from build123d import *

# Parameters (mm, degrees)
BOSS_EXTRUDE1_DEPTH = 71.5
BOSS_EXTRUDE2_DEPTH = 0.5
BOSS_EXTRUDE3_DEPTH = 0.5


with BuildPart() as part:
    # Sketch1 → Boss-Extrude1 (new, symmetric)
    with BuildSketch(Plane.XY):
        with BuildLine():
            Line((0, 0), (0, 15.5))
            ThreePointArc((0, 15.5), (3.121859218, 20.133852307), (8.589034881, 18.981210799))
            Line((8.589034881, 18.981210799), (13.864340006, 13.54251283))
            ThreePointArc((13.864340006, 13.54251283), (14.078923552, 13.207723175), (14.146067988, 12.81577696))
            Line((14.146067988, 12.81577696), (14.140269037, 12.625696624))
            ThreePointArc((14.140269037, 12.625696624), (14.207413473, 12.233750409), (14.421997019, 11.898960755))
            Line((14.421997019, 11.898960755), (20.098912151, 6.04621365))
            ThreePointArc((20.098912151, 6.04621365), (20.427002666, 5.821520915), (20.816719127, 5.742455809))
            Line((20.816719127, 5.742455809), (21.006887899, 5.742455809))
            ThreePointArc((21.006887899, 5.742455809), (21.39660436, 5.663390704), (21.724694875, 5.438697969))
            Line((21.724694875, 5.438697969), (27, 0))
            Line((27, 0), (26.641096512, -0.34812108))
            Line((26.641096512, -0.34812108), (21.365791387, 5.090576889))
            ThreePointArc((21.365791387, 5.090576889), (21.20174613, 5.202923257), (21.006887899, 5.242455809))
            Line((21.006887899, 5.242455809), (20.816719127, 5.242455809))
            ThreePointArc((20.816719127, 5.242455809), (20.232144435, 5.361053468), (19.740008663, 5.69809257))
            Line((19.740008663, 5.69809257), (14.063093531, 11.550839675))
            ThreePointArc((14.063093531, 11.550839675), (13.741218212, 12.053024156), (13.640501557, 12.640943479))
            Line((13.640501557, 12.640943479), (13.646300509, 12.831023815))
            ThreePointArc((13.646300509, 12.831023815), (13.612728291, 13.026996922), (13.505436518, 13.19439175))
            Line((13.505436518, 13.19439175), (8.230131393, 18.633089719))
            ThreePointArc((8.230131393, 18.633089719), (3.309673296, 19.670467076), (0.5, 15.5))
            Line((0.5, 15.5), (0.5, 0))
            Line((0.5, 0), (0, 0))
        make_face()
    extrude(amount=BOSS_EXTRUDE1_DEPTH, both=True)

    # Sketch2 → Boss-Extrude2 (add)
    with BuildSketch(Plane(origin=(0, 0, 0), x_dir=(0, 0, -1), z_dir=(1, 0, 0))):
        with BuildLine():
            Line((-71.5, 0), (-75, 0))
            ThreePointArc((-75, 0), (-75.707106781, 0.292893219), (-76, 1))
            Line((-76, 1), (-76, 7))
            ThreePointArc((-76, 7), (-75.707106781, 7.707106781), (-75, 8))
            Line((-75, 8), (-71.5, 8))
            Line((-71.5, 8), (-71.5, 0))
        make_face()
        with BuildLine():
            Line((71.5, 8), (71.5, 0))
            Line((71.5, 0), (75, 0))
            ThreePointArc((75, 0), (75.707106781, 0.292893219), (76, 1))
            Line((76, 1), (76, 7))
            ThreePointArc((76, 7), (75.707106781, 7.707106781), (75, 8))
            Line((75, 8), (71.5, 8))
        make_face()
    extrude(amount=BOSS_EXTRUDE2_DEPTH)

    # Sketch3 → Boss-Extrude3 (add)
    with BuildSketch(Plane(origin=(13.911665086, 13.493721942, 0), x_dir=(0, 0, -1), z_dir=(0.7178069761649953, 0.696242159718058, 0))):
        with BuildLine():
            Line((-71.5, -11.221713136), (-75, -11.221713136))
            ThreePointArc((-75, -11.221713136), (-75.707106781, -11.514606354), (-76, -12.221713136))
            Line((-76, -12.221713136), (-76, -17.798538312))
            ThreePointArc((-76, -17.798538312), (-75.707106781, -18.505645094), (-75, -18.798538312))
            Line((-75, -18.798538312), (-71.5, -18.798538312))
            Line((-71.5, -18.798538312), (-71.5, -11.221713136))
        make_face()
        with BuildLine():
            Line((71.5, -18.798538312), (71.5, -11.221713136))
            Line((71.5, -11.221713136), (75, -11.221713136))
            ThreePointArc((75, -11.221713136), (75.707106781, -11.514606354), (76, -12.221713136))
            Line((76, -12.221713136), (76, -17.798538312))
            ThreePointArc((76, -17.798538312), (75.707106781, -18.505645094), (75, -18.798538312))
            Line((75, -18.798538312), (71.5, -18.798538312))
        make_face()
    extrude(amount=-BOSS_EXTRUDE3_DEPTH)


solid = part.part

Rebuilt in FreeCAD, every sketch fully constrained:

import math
import FreeCAD as App
import Part
import Sketcher
Q = App.Units.Quantity

doc = App.newDocument("Part")
params = doc.addObject("Spreadsheet::Sheet", "Params")
for row, (alias, value) in enumerate([
    ("sketch1_radius", "1 mm"),
    ("sketch1_radius2", "5 mm"),
    ("sketch1_radius3", "4.5 mm"),
    ("sketch1_height", "15.5 mm"),
    ("pad1_length", "143 mm"),
    ("sketch2_radius", "1 mm"),
    ("sketch2_width", "8 mm"),
    ("sketch2_height", "3.5 mm"),
    ("pad2_length", "0.5 mm"),
    ("sketch3_radius", "1 mm"),
    ("sketch3_width", "3.5 mm"),
    ("pad3_length", "0.5 mm"),
], start=1):
    params.set(f"A{row}", alias)
    params.set(f"B{row}", "=" + value)
    params.setAlias(f"B{row}", alias)

body = doc.addObject("PartDesign::Body", "Body")

sketch1 = doc.addObject("Sketcher::SketchObject", "Sketch")
body.addObject(sketch1)
sketch1.AttachmentSupport = (doc.XY_Plane, [""])
sketch1.MapMode = "FlatFace"
sketch1.addGeometry(Part.LineSegment(App.Vector(0, 15.5, 0), App.Vector(0, 0, 0)), False)
sketch1.addGeometry(Part.LineSegment(App.Vector(0, 0, 0), App.Vector(0.5, 0, 0)), False)
sketch1.addGeometry(Part.LineSegment(App.Vector(0.5, 0, 0), App.Vector(0.5, 15.5, 0)), False)
sketch1.addGeometry(Part.ArcOfCircle(Part.Circle(App.Vector(5, 15.5, 0), App.Vector(0, 0, 1), 4.5), math.radians(44), math.radians(180)), False)
sketch1.addGeometry(Part.LineSegment(App.Vector(8.23, 18.63, 0), App.Vector(13.51, 13.19, 0)), False)
sketch1.addGeometry(Part.ArcOfCircle(Part.Circle(App.Vector(13.15, 12.85, 0), App.Vector(0, 0, 1), 0.5), math.radians(-2), math.radians(44)), False)
sketch1.addGeometry(Part.LineSegment(App.Vector(13.65, 12.83, 0), App.Vector(13.64, 12.64, 0)), False)
sketch1.addGeometry(Part.ArcOfCircle(Part.Circle(App.Vector(15.14, 12.6, 0), App.Vector(0, 0, 1), 1.5), math.radians(178), math.radians(224)), False)
sketch1.addGeometry(Part.LineSegment(App.Vector(14.06, 11.55, 0), App.Vector(19.74, 5.7, 0)), False)
sketch1.addGeometry(Part.ArcOfCircle(Part.Circle(App.Vector(20.82, 6.74, 0), App.Vector(0, 0, 1), 1.5), math.radians(-136), math.radians(-90)), False)
sketch1.addGeometry(Part.LineSegment(App.Vector(20.82, 5.24, 0), App.Vector(21.01, 5.24, 0)), False)
sketch1.addGeometry(Part.ArcOfCircle(Part.Circle(App.Vector(21.01, 4.74, 0), App.Vector(0, 0, 1), 0.5), math.radians(44), math.radians(90)), False)
sketch1.addGeometry(Part.LineSegment(App.Vector(21.37, 5.09, 0), App.Vector(26.64, -0.35, 0)), False)
sketch1.addGeometry(Part.LineSegment(App.Vector(26.64, -0.35, 0), App.Vector(27, 0, 0)), False)
sketch1.addGeometry(Part.LineSegment(App.Vector(27, 0, 0), App.Vector(21.72, 5.44, 0)), False)
sketch1.addGeometry(Part.ArcOfCircle(Part.Circle(App.Vector(21.01, 4.74, 0), App.Vector(0, 0, 1), 1), math.radians(44), math.radians(90)), False)
sketch1.addGeometry(Part.LineSegment(App.Vector(21.01, 5.74, 0), App.Vector(20.82, 5.74, 0)), False)
sketch1.addGeometry(Part.ArcOfCircle(Part.Circle(App.Vector(20.82, 6.74, 0), App.Vector(0, 0, 1), 1), math.radians(-136), math.radians(-90)), False)
sketch1.addGeometry(Part.LineSegment(App.Vector(20.1, 6.05, 0), App.Vector(14.42, 11.9, 0)), False)
sketch1.addGeometry(Part.ArcOfCircle(Part.Circle(App.Vector(15.14, 12.6, 0), App.Vector(0, 0, 1), 1), math.radians(178), math.radians(224)), False)
sketch1.addGeometry(Part.LineSegment(App.Vector(14.14, 12.63, 0), App.Vector(14.15, 12.82, 0)), False)
sketch1.addGeometry(Part.ArcOfCircle(Part.Circle(App.Vector(13.15, 12.85, 0), App.Vector(0, 0, 1), 1), math.radians(-2), math.radians(44)), False)
sketch1.addGeometry(Part.LineSegment(App.Vector(13.86, 13.54, 0), App.Vector(8.59, 18.98, 0)), False)
sketch1.addGeometry(Part.ArcOfCircle(Part.Circle(App.Vector(5, 15.5, 0), App.Vector(0, 0, 1), 5), math.radians(44), math.radians(180)), False)
sketch1.addConstraint(Sketcher.Constraint("Coincident", 0, 2, 1, 1))
sketch1.addConstraint(Sketcher.Constraint("Coincident", 1, 2, 2, 1))
sketch1.addConstraint(Sketcher.Constraint("Tangent", 2, 2, 3, 2))
sketch1.addConstraint(Sketcher.Constraint("Tangent", 3, 1, 4, 1))
sketch1.addConstraint(Sketcher.Constraint("Tangent", 4, 2, 5, 2))
sketch1.addConstraint(Sketcher.Constraint("Tangent", 5, 1, 6, 1))
sketch1.addConstraint(Sketcher.Constraint("Tangent", 6, 2, 7, 1))
sketch1.addConstraint(Sketcher.Constraint("Tangent", 7, 2, 8, 1))
sketch1.addConstraint(Sketcher.Constraint("Tangent", 8, 2, 9, 1))
sketch1.addConstraint(Sketcher.Constraint("Tangent", 9, 2, 10, 1))
sketch1.addConstraint(Sketcher.Constraint("Tangent", 10, 2, 11, 2))
sketch1.addConstraint(Sketcher.Constraint("Tangent", 11, 1, 12, 1))
sketch1.addConstraint(Sketcher.Constraint("Coincident", 12, 2, 13, 1))
sketch1.addConstraint(Sketcher.Constraint("Coincident", 13, 2, 14, 1))
sketch1.addConstraint(Sketcher.Constraint("Tangent", 14, 2, 15, 1))
sketch1.addConstraint(Sketcher.Constraint("Tangent", 15, 2, 16, 1))
sketch1.addConstraint(Sketcher.Constraint("Tangent", 16, 2, 17, 2))
sketch1.addConstraint(Sketcher.Constraint("Tangent", 17, 1, 18, 1))
sketch1.addConstraint(Sketcher.Constraint("Tangent", 18, 2, 19, 2))
sketch1.addConstraint(Sketcher.Constraint("Tangent", 19, 1, 20, 1))
sketch1.addConstraint(Sketcher.Constraint("Tangent", 20, 2, 21, 1))
sketch1.addConstraint(Sketcher.Constraint("Tangent", 21, 2, 22, 1))
sketch1.addConstraint(Sketcher.Constraint("Tangent", 22, 2, 23, 1))
sketch1.addConstraint(Sketcher.Constraint("Tangent", 23, 2, 0, 1))
sketch1.addConstraint(Sketcher.Constraint("Vertical", 0))
sketch1.addConstraint(Sketcher.Constraint("Horizontal", 1))
sketch1.addConstraint(Sketcher.Constraint("Vertical", 2))
sketch1.addConstraint(Sketcher.Constraint("Horizontal", 10))
sketch1.addConstraint(Sketcher.Constraint("Horizontal", 16))
sketch1.addConstraint(Sketcher.Constraint("Coincident", 0, 2, -1, 1))
sketch1.addConstraint(Sketcher.Constraint("Coincident", 15, 3, 11, 3))
sketch1.addConstraint(Sketcher.Constraint("Coincident", 17, 3, 9, 3))
sketch1.addConstraint(Sketcher.Constraint("Coincident", 19, 3, 7, 3))
sketch1.addConstraint(Sketcher.Constraint("Coincident", 21, 3, 5, 3))
sketch1.addConstraint(Sketcher.Constraint("Coincident", 23, 3, 3, 3))
sketch1.addConstraint(Sketcher.Constraint("Equal", 7, 9))
sketch1.addConstraint(Sketcher.Constraint("Equal", 5, 11))
sketch1.addConstraint(Sketcher.Constraint("Equal", 15, 17))
sketch1.addConstraint(Sketcher.Constraint("Equal", 17, 19))
sketch1.addConstraint(Sketcher.Constraint("Equal", 19, 21))
sketch1.addConstraint(Sketcher.Constraint("PointOnObject", 13, 2, -1))
sketch1.addConstraint(Sketcher.Constraint("Parallel", 4, 8))
sketch1.addConstraint(Sketcher.Constraint("Parallel", 8, 12))
sketch1.addConstraint(Sketcher.Constraint("Perpendicular", 12, 13))
sketch1.addConstraint(Sketcher.Constraint("Perpendicular", 13, 14))
sketch1.addConstraint(Sketcher.Constraint("Parallel", 18, 22))
sketch1.addConstraint(Sketcher.Constraint("Equal", 4, 12))
sketch1.addConstraint(Sketcher.Constraint("Radius", 15, Q("1 mm")))
sketch1.addConstraint(Sketcher.Constraint("Radius", 23, Q("5 mm")))
sketch1.addConstraint(Sketcher.Constraint("Radius", 3, Q("4.5 mm")))
sketch1.addConstraint(Sketcher.Constraint("DistanceY", 0, 2, 0, 1, Q("15.5 mm")))
sketch1.addConstraint(Sketcher.Constraint("DistanceX", -1, 1, 13, 2, Q("27 mm")))
sketch1.addConstraint(Sketcher.Constraint("DistanceX", 10, 1, 10, 2, Q("0.190169 mm")))
sketch1.addConstraint(Sketcher.Constraint("DistanceX", -1, 1, 5, 1, Q("13.646301 mm")))
sketch1.addConstraint(Sketcher.Constraint("DistanceX", -1, 1, 6, 2, Q("13.640502 mm")))
sketch1.addConstraint(Sketcher.Constraint("DistanceX", 3, 1, 21, 3, Q("4.916402 mm")))
sketch1.setExpression("Constraints[47]", "Params.sketch1_radius")
sketch1.setExpression("Constraints[48]", "Params.sketch1_radius2")
sketch1.setExpression("Constraints[49]", "Params.sketch1_radius3")
sketch1.setExpression("Constraints[50]", "Params.sketch1_height")
pad1 = doc.addObject("PartDesign::Pad", "Pad")
body.addObject(pad1)
pad1.Profile = sketch1
pad1.setExpression("Length", "Params.pad1_length")
pad1.Midplane = True

sketch2 = doc.addObject("Sketcher::SketchObject", "Sketch001")
body.addObject(sketch2)
sketch2.AttachmentSupport = (doc.YZ_Plane, [""])
sketch2.MapMode = "FlatFace"
sketch2.addGeometry(Part.LineSegment(App.Vector(0, 75, 0), App.Vector(0, 71.5, 0)), False)
sketch2.addGeometry(Part.LineSegment(App.Vector(0, 71.5, 0), App.Vector(8, 71.5, 0)), False)
sketch2.addGeometry(Part.LineSegment(App.Vector(8, 71.5, 0), App.Vector(8, 75, 0)), False)
sketch2.addGeometry(Part.ArcOfCircle(Part.Circle(App.Vector(7, 75, 0), App.Vector(0, 0, 1), 1), math.radians(0), math.radians(90)), False)
sketch2.addGeometry(Part.LineSegment(App.Vector(7, 76, 0), App.Vector(1, 76, 0)), False)
sketch2.addGeometry(Part.ArcOfCircle(Part.Circle(App.Vector(1, 75, 0), App.Vector(0, 0, 1), 1), math.radians(90), math.radians(180)), False)
sketch2.addGeometry(Part.LineSegment(App.Vector(8, -71.5, 0), App.Vector(0, -71.5, 0)), False)
sketch2.addGeometry(Part.LineSegment(App.Vector(0, -71.5, 0), App.Vector(0, -75, 0)), False)
sketch2.addGeometry(Part.ArcOfCircle(Part.Circle(App.Vector(1, -75, 0), App.Vector(0, 0, 1), 1), math.radians(-180), math.radians(-90)), False)
sketch2.addGeometry(Part.LineSegment(App.Vector(1, -76, 0), App.Vector(7, -76, 0)), False)
sketch2.addGeometry(Part.ArcOfCircle(Part.Circle(App.Vector(7, -75, 0), App.Vector(0, 0, 1), 1), math.radians(-90), math.radians(0)), False)
sketch2.addGeometry(Part.LineSegment(App.Vector(8, -75, 0), App.Vector(8, -71.5, 0)), False)
sketch2.addConstraint(Sketcher.Constraint("Coincident", 0, 2, 1, 1))
sketch2.addConstraint(Sketcher.Constraint("Coincident", 1, 2, 2, 1))
sketch2.addConstraint(Sketcher.Constraint("Tangent", 2, 2, 3, 1))
sketch2.addConstraint(Sketcher.Constraint("Tangent", 3, 2, 4, 1))
sketch2.addConstraint(Sketcher.Constraint("Tangent", 4, 2, 5, 1))
sketch2.addConstraint(Sketcher.Constraint("Tangent", 5, 2, 0, 1))
sketch2.addConstraint(Sketcher.Constraint("Coincident", 6, 2, 7, 1))
sketch2.addConstraint(Sketcher.Constraint("Tangent", 7, 2, 8, 1))
sketch2.addConstraint(Sketcher.Constraint("Tangent", 8, 2, 9, 1))
sketch2.addConstraint(Sketcher.Constraint("Tangent", 9, 2, 10, 1))
sketch2.addConstraint(Sketcher.Constraint("Tangent", 10, 2, 11, 1))
sketch2.addConstraint(Sketcher.Constraint("Coincident", 11, 2, 6, 1))
sketch2.addConstraint(Sketcher.Constraint("Vertical", 0))
sketch2.addConstraint(Sketcher.Constraint("Horizontal", 1))
sketch2.addConstraint(Sketcher.Constraint("Vertical", 2))
sketch2.addConstraint(Sketcher.Constraint("Horizontal", 4))
sketch2.addConstraint(Sketcher.Constraint("Horizontal", 6))
sketch2.addConstraint(Sketcher.Constraint("Vertical", 7))
sketch2.addConstraint(Sketcher.Constraint("Horizontal", 9))
sketch2.addConstraint(Sketcher.Constraint("Vertical", 11))
sketch2.addConstraint(Sketcher.Constraint("Equal", 3, 5))
sketch2.addConstraint(Sketcher.Constraint("Equal", 5, 8))
sketch2.addConstraint(Sketcher.Constraint("Equal", 8, 10))
sketch2.addConstraint(Sketcher.Constraint("Symmetric", 0, 2, 6, 2, -1, 1))
sketch2.addConstraint(Sketcher.Constraint("Symmetric", 5, 3, 8, 3, -1))
sketch2.addConstraint(Sketcher.Constraint("Vertical", 3, 3, 10, 3))
sketch2.addConstraint(Sketcher.Constraint("Radius", 3, Q("1 mm")))
sketch2.addConstraint(Sketcher.Constraint("DistanceX", 1, 1, 1, 2, Q("8 mm")))
sketch2.addConstraint(Sketcher.Constraint("DistanceY", 0, 2, 0, 1, Q("3.5 mm")))
sketch2.addConstraint(Sketcher.Constraint("DistanceY", -1, 1, 3, 3, Q("75 mm")))
sketch2.setExpression("Constraints[26]", "Params.sketch2_radius")
sketch2.setExpression("Constraints[27]", "Params.sketch2_width")
sketch2.setExpression("Constraints[28]", "Params.sketch2_height")
pad2 = doc.addObject("PartDesign::Pad", "Pad001")
body.addObject(pad2)
pad2.Profile = sketch2
pad2.setExpression("Length", "Params.pad2_length")

sketch3 = doc.addObject("Sketcher::SketchObject", "Sketch002")
body.addObject(sketch3)
sketch3.Placement = App.Placement(App.Vector(13.911665, 13.493722, 0), App.Rotation(App.Vector(0, 0, -1), App.Vector(-0.69624216, 0.717806976, 0), App.Vector(0.717806976, 0.69624216, 0), "ZXY"))
sketch3.addGeometry(Part.LineSegment(App.Vector(-71.5, -11.2, 0), App.Vector(-75, -11.2, 0)), False)
sketch3.addGeometry(Part.ArcOfCircle(Part.Circle(App.Vector(-75, -12.2, 0), App.Vector(0, 0, 1), 1), math.radians(90), math.radians(180)), False)
sketch3.addGeometry(Part.LineSegment(App.Vector(-76, -12.2, 0), App.Vector(-76, -17.8, 0)), False)
sketch3.addGeometry(Part.ArcOfCircle(Part.Circle(App.Vector(-75, -17.8, 0), App.Vector(0, 0, 1), 1), math.radians(180), math.radians(270)), False)
sketch3.addGeometry(Part.LineSegment(App.Vector(-75, -18.8, 0), App.Vector(-71.5, -18.8, 0)), False)
sketch3.addGeometry(Part.LineSegment(App.Vector(-71.5, -18.8, 0), App.Vector(-71.5, -11.2, 0)), False)
sketch3.addGeometry(Part.LineSegment(App.Vector(71.5, -11.2, 0), App.Vector(71.5, -18.8, 0)), False)
sketch3.addGeometry(Part.LineSegment(App.Vector(71.5, -18.8, 0), App.Vector(75, -18.8, 0)), False)
sketch3.addGeometry(Part.ArcOfCircle(Part.Circle(App.Vector(75, -17.8, 0), App.Vector(0, 0, 1), 1), math.radians(-90), math.radians(0)), False)
sketch3.addGeometry(Part.LineSegment(App.Vector(76, -17.8, 0), App.Vector(76, -12.2, 0)), False)
sketch3.addGeometry(Part.ArcOfCircle(Part.Circle(App.Vector(75, -12.2, 0), App.Vector(0, 0, 1), 1), math.radians(0), math.radians(90)), False)
sketch3.addGeometry(Part.LineSegment(App.Vector(75, -11.2, 0), App.Vector(71.5, -11.2, 0)), False)
sketch3.addConstraint(Sketcher.Constraint("Tangent", 0, 2, 1, 1))
sketch3.addConstraint(Sketcher.Constraint("Tangent", 1, 2, 2, 1))
sketch3.addConstraint(Sketcher.Constraint("Tangent", 2, 2, 3, 1))
sketch3.addConstraint(Sketcher.Constraint("Tangent", 3, 2, 4, 1))
sketch3.addConstraint(Sketcher.Constraint("Coincident", 4, 2, 5, 1))
sketch3.addConstraint(Sketcher.Constraint("Coincident", 5, 2, 0, 1))
sketch3.addConstraint(Sketcher.Constraint("Coincident", 6, 2, 7, 1))
sketch3.addConstraint(Sketcher.Constraint("Tangent", 7, 2, 8, 1))
sketch3.addConstraint(Sketcher.Constraint("Tangent", 8, 2, 9, 1))
sketch3.addConstraint(Sketcher.Constraint("Tangent", 9, 2, 10, 1))
sketch3.addConstraint(Sketcher.Constraint("Tangent", 10, 2, 11, 1))
sketch3.addConstraint(Sketcher.Constraint("Coincident", 11, 2, 6, 1))
sketch3.addConstraint(Sketcher.Constraint("Horizontal", 0))
sketch3.addConstraint(Sketcher.Constraint("Vertical", 2))
sketch3.addConstraint(Sketcher.Constraint("Horizontal", 4))
sketch3.addConstraint(Sketcher.Constraint("Vertical", 5))
sketch3.addConstraint(Sketcher.Constraint("Vertical", 6))
sketch3.addConstraint(Sketcher.Constraint("Horizontal", 7))
sketch3.addConstraint(Sketcher.Constraint("Vertical", 9))
sketch3.addConstraint(Sketcher.Constraint("Horizontal", 11))
sketch3.addConstraint(Sketcher.Constraint("Equal", 1, 3))
sketch3.addConstraint(Sketcher.Constraint("Equal", 3, 8))
sketch3.addConstraint(Sketcher.Constraint("Equal", 8, 10))
sketch3.addConstraint(Sketcher.Constraint("Symmetric", 3, 3, 8, 3, -2))
sketch3.addConstraint(Sketcher.Constraint("Symmetric", 5, 2, 11, 2, -2))
sketch3.addConstraint(Sketcher.Constraint("Radius", 1, Q("1 mm")))
sketch3.addConstraint(Sketcher.Constraint("DistanceX", 0, 2, 0, 1, Q("3.5 mm")))
sketch3.addConstraint(Sketcher.Constraint("DistanceX", 1, 3, -1, 1, Q("75 mm")))
sketch3.addConstraint(Sketcher.Constraint("DistanceY", 2, 2, 2, 1, Q("5.576825 mm")))
sketch3.addConstraint(Sketcher.Constraint("DistanceY", 3, 3, -1, 1, Q("17.798538 mm")))
sketch3.setExpression("Constraints[25]", "Params.sketch3_radius")
sketch3.setExpression("Constraints[26]", "Params.sketch3_width")
pad3 = doc.addObject("PartDesign::Pad", "Pad002")
body.addObject(pad3)
pad3.Profile = sketch3
pad3.setExpression("Length", "Params.pad3_length")
pad3.Reversed = True

doc.recompute()
